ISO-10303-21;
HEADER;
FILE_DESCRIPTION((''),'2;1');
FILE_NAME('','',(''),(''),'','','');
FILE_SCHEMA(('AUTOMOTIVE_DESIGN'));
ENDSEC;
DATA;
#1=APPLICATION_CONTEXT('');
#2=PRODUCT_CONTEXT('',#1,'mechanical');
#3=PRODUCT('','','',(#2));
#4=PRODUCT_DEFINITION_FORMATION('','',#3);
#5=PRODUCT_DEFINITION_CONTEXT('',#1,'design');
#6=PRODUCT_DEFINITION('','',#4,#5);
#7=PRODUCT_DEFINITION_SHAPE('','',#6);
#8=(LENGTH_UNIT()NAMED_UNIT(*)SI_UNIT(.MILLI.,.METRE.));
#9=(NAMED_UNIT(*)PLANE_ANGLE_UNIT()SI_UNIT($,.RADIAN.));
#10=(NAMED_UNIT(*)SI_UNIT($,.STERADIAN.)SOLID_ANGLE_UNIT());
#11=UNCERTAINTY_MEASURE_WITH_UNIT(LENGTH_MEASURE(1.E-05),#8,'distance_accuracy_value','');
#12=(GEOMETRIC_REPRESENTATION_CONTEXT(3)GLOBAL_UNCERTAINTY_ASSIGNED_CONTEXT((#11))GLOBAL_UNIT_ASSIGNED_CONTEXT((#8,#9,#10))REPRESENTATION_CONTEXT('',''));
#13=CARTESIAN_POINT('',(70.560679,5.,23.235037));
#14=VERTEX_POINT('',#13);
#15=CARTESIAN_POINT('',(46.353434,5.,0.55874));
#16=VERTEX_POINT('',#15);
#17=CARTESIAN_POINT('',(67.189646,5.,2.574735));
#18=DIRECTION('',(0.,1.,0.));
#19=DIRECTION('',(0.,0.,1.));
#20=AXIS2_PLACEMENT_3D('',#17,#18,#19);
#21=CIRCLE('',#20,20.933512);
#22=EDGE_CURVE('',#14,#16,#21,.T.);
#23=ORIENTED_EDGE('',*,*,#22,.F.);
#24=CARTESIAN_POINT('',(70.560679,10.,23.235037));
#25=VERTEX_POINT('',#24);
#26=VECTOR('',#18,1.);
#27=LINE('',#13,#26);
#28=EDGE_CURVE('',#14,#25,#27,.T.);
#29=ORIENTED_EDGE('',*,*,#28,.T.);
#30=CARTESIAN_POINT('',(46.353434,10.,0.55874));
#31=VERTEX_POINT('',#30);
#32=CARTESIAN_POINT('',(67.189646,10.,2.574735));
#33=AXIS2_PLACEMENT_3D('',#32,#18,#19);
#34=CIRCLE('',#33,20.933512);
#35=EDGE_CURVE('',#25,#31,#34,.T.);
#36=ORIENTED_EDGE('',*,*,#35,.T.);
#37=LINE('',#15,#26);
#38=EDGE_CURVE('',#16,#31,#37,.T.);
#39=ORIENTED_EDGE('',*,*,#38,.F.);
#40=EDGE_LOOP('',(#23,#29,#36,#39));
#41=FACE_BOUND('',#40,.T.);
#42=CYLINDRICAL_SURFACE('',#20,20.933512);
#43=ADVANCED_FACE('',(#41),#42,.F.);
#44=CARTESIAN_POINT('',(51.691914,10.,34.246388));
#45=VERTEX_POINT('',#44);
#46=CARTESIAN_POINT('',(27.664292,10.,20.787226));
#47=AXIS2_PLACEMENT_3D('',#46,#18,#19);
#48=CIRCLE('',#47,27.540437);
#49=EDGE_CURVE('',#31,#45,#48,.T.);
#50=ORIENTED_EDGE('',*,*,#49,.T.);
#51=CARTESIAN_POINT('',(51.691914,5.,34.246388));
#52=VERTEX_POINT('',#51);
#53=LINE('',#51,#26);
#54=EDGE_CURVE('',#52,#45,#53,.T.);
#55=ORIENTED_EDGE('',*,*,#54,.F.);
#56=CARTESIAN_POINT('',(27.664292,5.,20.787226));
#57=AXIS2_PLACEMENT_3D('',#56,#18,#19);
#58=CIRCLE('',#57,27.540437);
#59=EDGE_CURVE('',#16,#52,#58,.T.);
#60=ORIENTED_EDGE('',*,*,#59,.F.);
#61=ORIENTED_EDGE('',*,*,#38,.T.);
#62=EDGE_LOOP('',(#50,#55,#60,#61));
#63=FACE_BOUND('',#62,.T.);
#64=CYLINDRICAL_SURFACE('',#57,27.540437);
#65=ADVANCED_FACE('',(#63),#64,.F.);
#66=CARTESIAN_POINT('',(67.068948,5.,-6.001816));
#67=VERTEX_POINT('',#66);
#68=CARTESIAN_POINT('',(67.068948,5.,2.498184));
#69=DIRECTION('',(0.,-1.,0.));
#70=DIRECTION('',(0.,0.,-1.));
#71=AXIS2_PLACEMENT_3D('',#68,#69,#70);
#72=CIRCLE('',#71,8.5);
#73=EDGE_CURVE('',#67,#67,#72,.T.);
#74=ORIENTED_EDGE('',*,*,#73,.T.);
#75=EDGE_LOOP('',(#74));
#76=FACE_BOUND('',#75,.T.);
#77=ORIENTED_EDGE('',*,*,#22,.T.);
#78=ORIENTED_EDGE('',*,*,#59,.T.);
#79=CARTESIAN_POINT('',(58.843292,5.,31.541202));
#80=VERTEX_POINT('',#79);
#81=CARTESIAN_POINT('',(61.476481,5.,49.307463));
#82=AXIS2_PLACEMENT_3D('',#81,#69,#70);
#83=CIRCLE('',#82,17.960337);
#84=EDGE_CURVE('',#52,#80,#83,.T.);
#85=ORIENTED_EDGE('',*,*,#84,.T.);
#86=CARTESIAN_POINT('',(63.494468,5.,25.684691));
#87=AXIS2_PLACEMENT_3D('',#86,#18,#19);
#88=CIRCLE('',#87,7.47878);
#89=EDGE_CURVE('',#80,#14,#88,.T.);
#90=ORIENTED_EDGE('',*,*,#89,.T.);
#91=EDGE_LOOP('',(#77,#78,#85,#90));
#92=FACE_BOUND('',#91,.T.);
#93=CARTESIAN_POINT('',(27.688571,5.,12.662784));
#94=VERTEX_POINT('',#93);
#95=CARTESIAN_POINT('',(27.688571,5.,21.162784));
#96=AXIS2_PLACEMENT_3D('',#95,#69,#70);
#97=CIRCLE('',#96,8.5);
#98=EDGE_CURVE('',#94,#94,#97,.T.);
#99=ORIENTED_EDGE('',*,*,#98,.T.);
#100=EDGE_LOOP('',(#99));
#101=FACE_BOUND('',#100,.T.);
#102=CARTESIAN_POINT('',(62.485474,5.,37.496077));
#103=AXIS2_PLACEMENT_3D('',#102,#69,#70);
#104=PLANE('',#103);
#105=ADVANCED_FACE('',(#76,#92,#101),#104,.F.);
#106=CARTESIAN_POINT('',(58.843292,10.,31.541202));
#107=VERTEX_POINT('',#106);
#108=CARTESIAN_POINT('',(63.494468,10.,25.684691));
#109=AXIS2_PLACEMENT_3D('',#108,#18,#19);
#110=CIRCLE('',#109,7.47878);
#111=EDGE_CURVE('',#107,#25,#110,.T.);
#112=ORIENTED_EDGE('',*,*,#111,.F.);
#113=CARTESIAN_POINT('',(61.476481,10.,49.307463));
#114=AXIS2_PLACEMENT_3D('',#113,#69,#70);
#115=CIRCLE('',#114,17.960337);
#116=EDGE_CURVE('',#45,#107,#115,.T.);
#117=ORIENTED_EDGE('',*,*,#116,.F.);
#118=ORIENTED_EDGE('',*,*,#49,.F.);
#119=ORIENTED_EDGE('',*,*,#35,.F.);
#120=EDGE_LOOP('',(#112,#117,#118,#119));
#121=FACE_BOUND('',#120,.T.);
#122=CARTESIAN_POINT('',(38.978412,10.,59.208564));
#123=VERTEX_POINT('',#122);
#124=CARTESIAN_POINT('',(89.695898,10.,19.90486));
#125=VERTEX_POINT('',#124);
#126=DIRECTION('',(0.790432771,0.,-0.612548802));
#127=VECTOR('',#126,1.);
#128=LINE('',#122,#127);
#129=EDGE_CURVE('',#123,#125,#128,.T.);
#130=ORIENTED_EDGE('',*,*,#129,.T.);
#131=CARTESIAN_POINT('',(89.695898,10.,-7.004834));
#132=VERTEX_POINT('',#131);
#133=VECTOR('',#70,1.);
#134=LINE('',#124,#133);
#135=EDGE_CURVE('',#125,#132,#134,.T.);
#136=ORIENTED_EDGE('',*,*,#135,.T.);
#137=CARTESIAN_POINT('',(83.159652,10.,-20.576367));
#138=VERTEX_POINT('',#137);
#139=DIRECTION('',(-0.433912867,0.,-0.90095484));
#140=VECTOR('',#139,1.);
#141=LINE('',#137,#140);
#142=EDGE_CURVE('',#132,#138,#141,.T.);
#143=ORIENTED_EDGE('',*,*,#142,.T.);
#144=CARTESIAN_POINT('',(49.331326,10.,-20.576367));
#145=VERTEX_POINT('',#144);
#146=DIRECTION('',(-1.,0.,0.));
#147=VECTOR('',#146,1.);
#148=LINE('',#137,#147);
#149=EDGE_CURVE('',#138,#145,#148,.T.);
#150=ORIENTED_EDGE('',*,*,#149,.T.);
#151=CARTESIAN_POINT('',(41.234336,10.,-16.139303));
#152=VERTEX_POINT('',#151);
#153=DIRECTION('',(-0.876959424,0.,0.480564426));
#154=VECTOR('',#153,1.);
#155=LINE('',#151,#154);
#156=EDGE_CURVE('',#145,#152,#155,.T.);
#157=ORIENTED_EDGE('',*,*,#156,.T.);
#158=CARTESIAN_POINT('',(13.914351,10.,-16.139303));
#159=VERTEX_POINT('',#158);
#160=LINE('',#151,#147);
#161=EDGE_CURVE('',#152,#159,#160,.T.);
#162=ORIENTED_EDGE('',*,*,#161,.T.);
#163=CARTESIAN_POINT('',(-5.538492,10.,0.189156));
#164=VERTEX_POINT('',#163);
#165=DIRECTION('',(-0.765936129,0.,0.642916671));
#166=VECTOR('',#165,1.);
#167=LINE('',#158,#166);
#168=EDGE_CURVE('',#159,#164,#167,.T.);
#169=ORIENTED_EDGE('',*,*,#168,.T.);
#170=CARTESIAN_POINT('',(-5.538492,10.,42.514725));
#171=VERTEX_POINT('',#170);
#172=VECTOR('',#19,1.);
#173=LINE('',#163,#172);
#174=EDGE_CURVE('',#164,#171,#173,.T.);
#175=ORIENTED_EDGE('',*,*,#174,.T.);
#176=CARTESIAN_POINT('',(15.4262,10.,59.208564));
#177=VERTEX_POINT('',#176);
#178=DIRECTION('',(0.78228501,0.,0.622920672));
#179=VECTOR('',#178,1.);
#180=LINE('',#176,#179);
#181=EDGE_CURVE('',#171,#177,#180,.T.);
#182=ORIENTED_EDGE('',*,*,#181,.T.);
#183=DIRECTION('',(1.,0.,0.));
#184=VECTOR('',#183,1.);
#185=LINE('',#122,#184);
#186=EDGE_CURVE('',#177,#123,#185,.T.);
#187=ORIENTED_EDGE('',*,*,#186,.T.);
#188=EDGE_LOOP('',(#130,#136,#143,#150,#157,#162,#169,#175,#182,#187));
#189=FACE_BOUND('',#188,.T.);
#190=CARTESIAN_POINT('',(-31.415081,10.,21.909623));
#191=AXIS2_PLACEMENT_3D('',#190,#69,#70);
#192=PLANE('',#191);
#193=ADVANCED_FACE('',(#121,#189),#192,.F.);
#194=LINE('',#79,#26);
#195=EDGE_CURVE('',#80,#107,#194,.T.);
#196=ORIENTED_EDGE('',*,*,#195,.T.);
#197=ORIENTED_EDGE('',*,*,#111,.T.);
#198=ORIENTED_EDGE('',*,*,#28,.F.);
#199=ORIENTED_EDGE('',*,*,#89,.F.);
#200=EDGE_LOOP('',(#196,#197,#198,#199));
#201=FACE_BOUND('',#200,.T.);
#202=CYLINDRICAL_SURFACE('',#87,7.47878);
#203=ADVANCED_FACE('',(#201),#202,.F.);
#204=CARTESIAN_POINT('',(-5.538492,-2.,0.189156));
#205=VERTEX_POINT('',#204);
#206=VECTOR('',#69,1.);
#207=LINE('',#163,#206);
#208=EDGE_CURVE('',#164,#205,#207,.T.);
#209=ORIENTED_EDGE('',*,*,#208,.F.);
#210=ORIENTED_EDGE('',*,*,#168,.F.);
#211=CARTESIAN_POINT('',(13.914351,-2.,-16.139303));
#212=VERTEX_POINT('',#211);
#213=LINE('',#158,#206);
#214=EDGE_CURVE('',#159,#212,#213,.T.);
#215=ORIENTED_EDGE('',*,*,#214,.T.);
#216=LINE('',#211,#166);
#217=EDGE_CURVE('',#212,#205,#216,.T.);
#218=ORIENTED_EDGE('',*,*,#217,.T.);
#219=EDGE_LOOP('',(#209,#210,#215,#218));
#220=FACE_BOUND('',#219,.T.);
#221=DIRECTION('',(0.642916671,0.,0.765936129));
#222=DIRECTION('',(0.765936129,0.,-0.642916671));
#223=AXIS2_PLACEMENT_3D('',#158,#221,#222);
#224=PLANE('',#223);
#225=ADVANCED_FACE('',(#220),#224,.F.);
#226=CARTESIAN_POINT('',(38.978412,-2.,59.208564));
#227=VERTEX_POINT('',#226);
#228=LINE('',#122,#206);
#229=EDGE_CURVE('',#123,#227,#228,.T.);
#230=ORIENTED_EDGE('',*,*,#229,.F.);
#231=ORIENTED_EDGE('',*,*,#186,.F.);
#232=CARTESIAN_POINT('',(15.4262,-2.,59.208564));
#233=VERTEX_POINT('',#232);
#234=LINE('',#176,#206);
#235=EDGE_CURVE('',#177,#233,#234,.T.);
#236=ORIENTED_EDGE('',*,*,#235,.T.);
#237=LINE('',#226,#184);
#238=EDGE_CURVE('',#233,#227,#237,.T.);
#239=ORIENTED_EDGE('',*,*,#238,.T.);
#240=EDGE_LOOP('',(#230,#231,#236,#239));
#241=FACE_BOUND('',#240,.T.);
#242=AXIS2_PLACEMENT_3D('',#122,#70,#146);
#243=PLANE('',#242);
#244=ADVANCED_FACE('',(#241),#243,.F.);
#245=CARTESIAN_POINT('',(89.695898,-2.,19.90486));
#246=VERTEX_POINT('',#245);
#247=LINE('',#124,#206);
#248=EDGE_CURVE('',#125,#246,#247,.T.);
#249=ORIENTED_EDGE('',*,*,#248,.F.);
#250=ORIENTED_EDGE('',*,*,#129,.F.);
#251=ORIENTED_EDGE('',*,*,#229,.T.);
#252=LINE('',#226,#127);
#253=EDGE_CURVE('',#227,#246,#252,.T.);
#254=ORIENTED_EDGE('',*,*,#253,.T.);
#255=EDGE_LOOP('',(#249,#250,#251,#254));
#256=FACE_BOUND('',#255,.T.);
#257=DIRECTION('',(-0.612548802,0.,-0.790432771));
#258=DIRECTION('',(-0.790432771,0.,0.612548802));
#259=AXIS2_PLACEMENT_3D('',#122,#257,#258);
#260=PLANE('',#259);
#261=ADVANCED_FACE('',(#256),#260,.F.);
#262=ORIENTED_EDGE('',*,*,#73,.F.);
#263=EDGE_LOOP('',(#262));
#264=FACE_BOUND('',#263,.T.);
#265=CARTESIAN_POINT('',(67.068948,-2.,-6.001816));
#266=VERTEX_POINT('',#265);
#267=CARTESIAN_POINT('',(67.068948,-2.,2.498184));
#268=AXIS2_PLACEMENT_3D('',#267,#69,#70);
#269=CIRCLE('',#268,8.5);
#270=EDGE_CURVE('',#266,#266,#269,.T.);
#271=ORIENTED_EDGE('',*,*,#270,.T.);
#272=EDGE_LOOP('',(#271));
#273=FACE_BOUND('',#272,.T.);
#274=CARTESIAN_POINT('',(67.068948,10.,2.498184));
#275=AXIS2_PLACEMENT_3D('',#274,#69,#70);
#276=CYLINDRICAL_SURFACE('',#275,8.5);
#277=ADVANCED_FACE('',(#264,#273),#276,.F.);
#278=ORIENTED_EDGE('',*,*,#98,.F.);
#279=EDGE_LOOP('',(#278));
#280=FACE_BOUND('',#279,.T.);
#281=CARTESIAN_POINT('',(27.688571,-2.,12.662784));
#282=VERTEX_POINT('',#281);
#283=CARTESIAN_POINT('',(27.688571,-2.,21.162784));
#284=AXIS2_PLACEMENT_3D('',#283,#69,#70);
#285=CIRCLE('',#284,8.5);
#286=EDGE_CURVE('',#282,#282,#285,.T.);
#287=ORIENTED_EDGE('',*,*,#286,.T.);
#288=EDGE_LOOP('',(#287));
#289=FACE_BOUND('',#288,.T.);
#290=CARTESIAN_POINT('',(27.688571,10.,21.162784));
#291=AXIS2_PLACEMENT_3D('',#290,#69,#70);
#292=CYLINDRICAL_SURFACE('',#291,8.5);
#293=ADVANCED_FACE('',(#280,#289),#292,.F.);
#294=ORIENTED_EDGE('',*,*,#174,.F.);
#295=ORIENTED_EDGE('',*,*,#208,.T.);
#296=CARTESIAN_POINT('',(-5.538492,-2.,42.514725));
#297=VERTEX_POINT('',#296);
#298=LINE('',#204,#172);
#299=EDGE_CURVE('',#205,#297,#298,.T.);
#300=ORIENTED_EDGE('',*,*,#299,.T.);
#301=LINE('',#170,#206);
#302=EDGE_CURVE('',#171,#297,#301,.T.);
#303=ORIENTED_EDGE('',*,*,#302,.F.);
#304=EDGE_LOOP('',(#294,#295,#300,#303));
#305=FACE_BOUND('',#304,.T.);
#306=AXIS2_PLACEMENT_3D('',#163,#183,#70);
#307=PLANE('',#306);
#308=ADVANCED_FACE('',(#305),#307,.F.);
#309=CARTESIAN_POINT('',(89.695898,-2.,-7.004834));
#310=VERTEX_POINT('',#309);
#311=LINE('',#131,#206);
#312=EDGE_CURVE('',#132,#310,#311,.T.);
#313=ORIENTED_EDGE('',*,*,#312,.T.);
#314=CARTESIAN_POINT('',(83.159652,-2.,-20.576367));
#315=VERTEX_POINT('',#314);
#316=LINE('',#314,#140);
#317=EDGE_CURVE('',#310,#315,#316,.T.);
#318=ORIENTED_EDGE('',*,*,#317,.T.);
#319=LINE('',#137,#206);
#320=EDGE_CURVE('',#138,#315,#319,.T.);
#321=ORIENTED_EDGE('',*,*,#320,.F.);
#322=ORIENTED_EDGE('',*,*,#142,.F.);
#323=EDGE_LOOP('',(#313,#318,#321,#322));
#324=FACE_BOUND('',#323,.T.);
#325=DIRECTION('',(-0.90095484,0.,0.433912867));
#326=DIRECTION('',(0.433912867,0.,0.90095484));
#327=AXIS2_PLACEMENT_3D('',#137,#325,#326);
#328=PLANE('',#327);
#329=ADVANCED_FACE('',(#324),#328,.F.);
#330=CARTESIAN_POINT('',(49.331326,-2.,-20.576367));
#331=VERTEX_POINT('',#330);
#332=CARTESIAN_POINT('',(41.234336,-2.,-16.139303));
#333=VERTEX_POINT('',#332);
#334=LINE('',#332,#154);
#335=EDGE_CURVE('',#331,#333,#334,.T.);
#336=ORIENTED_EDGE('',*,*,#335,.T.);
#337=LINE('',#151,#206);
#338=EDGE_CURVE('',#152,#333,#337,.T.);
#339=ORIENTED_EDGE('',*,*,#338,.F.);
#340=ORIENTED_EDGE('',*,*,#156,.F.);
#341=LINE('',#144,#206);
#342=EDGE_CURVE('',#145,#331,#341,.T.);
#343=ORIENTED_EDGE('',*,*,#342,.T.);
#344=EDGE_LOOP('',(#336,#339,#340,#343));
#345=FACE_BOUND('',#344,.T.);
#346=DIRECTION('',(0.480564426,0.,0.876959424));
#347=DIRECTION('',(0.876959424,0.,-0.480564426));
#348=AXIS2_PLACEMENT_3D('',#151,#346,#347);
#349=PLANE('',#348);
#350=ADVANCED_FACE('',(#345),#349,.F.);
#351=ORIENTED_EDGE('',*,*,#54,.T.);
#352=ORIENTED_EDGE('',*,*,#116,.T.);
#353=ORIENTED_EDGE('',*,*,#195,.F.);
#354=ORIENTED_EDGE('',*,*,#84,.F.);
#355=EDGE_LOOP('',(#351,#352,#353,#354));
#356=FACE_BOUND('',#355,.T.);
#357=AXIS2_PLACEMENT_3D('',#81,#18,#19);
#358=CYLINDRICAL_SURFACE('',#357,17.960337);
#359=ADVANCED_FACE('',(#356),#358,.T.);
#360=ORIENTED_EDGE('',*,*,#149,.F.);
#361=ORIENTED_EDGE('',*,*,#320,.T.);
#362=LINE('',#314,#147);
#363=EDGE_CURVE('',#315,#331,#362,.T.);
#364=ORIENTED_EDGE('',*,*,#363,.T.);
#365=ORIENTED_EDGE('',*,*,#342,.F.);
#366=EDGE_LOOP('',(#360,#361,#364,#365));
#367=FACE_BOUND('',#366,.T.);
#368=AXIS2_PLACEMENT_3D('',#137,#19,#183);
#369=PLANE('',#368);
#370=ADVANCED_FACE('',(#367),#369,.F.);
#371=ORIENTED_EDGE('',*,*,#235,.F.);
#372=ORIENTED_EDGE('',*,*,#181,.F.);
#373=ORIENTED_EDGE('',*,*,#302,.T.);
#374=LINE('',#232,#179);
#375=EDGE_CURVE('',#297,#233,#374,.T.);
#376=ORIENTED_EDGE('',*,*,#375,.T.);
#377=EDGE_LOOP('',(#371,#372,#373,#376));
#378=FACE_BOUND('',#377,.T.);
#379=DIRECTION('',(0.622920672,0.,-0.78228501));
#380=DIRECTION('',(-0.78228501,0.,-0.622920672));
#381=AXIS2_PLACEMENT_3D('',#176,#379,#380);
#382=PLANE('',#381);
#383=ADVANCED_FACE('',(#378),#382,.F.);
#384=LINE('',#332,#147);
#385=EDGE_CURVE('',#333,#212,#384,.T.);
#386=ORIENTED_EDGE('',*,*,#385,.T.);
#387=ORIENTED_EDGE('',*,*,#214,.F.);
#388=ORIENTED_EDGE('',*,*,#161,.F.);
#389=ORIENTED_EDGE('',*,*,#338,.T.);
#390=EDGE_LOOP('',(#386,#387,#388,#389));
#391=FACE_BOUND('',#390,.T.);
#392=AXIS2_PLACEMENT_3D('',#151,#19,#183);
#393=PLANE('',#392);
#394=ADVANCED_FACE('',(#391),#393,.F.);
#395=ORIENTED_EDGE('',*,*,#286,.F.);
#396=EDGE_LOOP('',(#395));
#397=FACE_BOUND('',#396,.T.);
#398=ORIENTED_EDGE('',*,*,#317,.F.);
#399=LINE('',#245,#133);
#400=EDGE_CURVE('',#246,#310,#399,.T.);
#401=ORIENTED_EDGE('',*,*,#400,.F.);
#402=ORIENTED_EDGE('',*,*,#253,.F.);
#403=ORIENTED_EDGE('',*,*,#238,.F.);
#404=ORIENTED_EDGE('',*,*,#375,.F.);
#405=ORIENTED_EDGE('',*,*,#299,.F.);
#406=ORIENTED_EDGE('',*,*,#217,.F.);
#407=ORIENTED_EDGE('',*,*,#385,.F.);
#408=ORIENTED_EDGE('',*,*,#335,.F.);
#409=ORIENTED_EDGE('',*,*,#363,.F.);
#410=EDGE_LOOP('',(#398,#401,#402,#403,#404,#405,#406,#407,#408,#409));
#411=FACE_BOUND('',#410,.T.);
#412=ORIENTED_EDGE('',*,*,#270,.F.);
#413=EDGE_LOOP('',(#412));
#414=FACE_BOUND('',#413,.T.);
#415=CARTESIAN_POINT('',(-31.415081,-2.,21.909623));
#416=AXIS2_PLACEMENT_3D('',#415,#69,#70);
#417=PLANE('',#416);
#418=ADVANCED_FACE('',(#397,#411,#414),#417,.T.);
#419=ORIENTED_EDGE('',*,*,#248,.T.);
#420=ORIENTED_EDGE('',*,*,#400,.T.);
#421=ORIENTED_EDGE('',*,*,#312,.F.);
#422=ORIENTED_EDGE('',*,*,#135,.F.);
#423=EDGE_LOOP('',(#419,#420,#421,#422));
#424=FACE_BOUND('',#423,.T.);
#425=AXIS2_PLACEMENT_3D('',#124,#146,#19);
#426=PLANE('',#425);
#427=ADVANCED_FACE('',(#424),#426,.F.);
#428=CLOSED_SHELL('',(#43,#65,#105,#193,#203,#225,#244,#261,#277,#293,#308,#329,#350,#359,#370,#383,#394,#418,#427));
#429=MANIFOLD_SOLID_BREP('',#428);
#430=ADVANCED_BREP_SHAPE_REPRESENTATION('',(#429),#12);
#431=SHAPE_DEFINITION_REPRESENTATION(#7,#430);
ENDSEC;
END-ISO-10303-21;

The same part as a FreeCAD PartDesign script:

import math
import FreeCAD as App
import Part
import Sketcher

doc = App.newDocument("Part")
body = doc.addObject("PartDesign::Body", "Body")

# Sketch on XZ plane
sketch1 = doc.addObject("Sketcher::SketchObject", "Sketch")
body.addObject(sketch1)
sketch1.AttachmentSupport = (doc.XZ_Plane, [""])
sketch1.MapMode = "FlatFace"
sketch1.AttachmentOffset = App.Placement(App.Vector(0, 0, 2), App.Rotation())
sketch1.addGeometry([
    Part.LineSegment(App.Vector(49, -21, 0), App.Vector(41, -16, 0)),  # 0
    Part.LineSegment(App.Vector(41, -16, 0), App.Vector(14, -16, 0)),  # 1
    Part.LineSegment(App.Vector(14, -16, 0), App.Vector(-6, 0, 0)),  # 2
    Part.LineSegment(App.Vector(-6, 0, 0), App.Vector(-6, 43, 0)),  # 3
    Part.LineSegment(App.Vector(-6, 43, 0), App.Vector(15, 59, 0)),  # 4
    Part.LineSegment(App.Vector(15, 59, 0), App.Vector(39, 59, 0)),  # 5
    Part.LineSegment(App.Vector(39, 59, 0), App.Vector(90, 20, 0)),  # 6
    Part.LineSegment(App.Vector(90, 20, 0), App.Vector(90, -7, 0)),  # 7
    Part.LineSegment(App.Vector(90, -7, 0), App.Vector(83, -21, 0)),  # 8
    Part.LineSegment(App.Vector(83, -21, 0), App.Vector(49, -21, 0)),  # 9
], False)
sketch1.addConstraint([
    Sketcher.Constraint("Coincident", 0, 2, 1, 1),
    Sketcher.Constraint("Coincident", 1, 2, 2, 1),
    Sketcher.Constraint("Coincident", 2, 2, 3, 1),
    Sketcher.Constraint("Coincident", 3, 2, 4, 1),
    Sketcher.Constraint("Coincident", 4, 2, 5, 1),
    Sketcher.Constraint("Coincident", 5, 2, 6, 1),
    Sketcher.Constraint("Coincident", 6, 2, 7, 1),
    Sketcher.Constraint("Coincident", 7, 2, 8, 1),
    Sketcher.Constraint("Coincident", 8, 2, 9, 1),
    Sketcher.Constraint("Coincident", 9, 2, 0, 1),
    Sketcher.Constraint("Horizontal", 1),
    Sketcher.Constraint("Vertical", 3),
    Sketcher.Constraint("Horizontal", 5),
    Sketcher.Constraint("Vertical", 7),
    Sketcher.Constraint("Horizontal", 9),
    Sketcher.Constraint("Distance", 4, 26.799301),
    Sketcher.Constraint("Distance", 6, 64.1642),
    Sketcher.Constraint("Distance", 8, 15.0635),
    Sketcher.Constraint("DistanceX", 5, 1, 5, 2, 23.552212),
    Sketcher.Constraint("DistanceY", 3, 1, 3, 2, 42.325569),
    Sketcher.Constraint("DistanceX", -1, 1, 4, 2, 15.4262),
    Sketcher.Constraint("DistanceX", -1, 1, 6, 2, 89.695898),
    Sketcher.Constraint("DistanceY", 7, 2, 5, 2, 66.213398),
    Sketcher.Constraint("DistanceX", 1, 2, 8, 2, 69.245301),
    Sketcher.Constraint("DistanceX", 1, 2, 1, 1, 27.319985),
    Sketcher.Constraint("DistanceX", 9, 2, 9, 1, 33.828326),
    Sketcher.Constraint("DistanceX", -1, 1, 1, 2, 13.914351),
    Sketcher.Constraint("DistanceX", 2, 2, -1, 1, 5.538492),
    Sketcher.Constraint("DistanceY", -1, 1, 6, 2, 19.90486),
    Sketcher.Constraint("DistanceY", 1, 2, 2, 2, 16.328459),
])
pad1 = doc.addObject("PartDesign::Pad", "Pad")
body.addObject(pad1)
pad1.Profile = sketch1
pad1.Length = 12
pad1.Reversed = True

# Sketch on XZ plane
sketch2 = doc.addObject("Sketcher::SketchObject", "Sketch001")
body.addObject(sketch2)
sketch2.AttachmentSupport = (doc.XZ_Plane, [""])
sketch2.MapMode = "FlatFace"
sketch2.AttachmentOffset = App.Placement(App.Vector(0, 0, -10), App.Rotation())
sketch2.addGeometry([
    Part.ArcOfCircle(Part.Circle(App.Vector(28, 21, 0), App.Vector(0, 0, 1), 28), math.radians(29), math.radians(313)),
    Part.ArcOfCircle(Part.Circle(App.Vector(61, 49, 0), App.Vector(0, 0, 1), 18), math.radians(-123), math.radians(-98)),
    Part.ArcOfCircle(Part.Circle(App.Vector(63, 26, 0), App.Vector(0, 0, 1), 7), math.radians(-19), math.radians(128)),
    Part.ArcOfCircle(Part.Circle(App.Vector(67, 3, 0), App.Vector(0, 0, 1), 21), math.radians(-174), math.radians(81)),
], False)
sketch2.addConstraint([
    Sketcher.Constraint("Coincident", 0, 1, 1, 1),
    Sketcher.Constraint("Coincident", 1, 2, 2, 2),
    Sketcher.Constraint("Coincident", 2, 1, 3, 2),
    Sketcher.Constraint("Coincident", 3, 1, 0, 2),
    Sketcher.Constraint("Radius", 2, 7.47878),
    Sketcher.Constraint("Radius", 0, 27.540437),
    Sketcher.Constraint("Radius", 1, 17.960337),
    Sketcher.Constraint("Radius", 3, 20.933512),
    Sketcher.Constraint("DistanceX", 0, 3, 1, 2, 31.179),
    Sketcher.Constraint("DistanceY", -1, 1, 1, 2, 31.541202),
    Sketcher.Constraint("DistanceY", 3, 3, 2, 1, 20.660302),
    Sketcher.Constraint("DistanceX", 1, 3, 2, 1, 9.084198),
    Sketcher.Constraint("DistanceX", -1, 1, 1, 3, 61.476481),
    Sketcher.Constraint("DistanceY", -1, 1, 2, 3, 25.684691),
    Sketcher.Constraint("DistanceY", -1, 1, 0, 1, 34.246388),
    Sketcher.Constraint("DistanceY", -1, 1, 3, 1, 0.55874),
])
pocket1 = doc.addObject("PartDesign::Pocket", "Pocket")
body.addObject(pocket1)
pocket1.Profile = sketch2
pocket1.Length = 5
pocket1.Reversed = True

# Sketch on XZ plane
sketch3 = doc.addObject("Sketcher::SketchObject", "Sketch002")
body.addObject(sketch3)
sketch3.AttachmentSupport = (doc.XZ_Plane, [""])
sketch3.MapMode = "FlatFace"
sketch3.AttachmentOffset = App.Placement(App.Vector(0, 0, 2), App.Rotation())
sketch3.addGeometry([
    Part.Circle(App.Vector(28, 21, 0), App.Vector(0, 0, 1), 8),
    Part.Circle(App.Vector(67, 2, 0), App.Vector(0, 0, 1), 8),
], False)
sketch3.addConstraint([
    Sketcher.Constraint("Equal", 0, 1),
    Sketcher.Constraint("Diameter", 0, 17.0),
    Sketcher.Constraint("DistanceY", 1, 3, 0, 3, 18.6646),
    Sketcher.Constraint("DistanceX", -1, 1, 0, 3, 27.688571),
    Sketcher.Constraint("DistanceY", -1, 1, 0, 3, 21.162784),
    Sketcher.Constraint("DistanceX", -1, 1, 1, 3, 67.068948),
])
pocket2 = doc.addObject("PartDesign::Pocket", "Pocket001")
body.addObject(pocket2)
pocket2.Profile = sketch3
pocket2.Type = "ThroughAll"

doc.recompute()
